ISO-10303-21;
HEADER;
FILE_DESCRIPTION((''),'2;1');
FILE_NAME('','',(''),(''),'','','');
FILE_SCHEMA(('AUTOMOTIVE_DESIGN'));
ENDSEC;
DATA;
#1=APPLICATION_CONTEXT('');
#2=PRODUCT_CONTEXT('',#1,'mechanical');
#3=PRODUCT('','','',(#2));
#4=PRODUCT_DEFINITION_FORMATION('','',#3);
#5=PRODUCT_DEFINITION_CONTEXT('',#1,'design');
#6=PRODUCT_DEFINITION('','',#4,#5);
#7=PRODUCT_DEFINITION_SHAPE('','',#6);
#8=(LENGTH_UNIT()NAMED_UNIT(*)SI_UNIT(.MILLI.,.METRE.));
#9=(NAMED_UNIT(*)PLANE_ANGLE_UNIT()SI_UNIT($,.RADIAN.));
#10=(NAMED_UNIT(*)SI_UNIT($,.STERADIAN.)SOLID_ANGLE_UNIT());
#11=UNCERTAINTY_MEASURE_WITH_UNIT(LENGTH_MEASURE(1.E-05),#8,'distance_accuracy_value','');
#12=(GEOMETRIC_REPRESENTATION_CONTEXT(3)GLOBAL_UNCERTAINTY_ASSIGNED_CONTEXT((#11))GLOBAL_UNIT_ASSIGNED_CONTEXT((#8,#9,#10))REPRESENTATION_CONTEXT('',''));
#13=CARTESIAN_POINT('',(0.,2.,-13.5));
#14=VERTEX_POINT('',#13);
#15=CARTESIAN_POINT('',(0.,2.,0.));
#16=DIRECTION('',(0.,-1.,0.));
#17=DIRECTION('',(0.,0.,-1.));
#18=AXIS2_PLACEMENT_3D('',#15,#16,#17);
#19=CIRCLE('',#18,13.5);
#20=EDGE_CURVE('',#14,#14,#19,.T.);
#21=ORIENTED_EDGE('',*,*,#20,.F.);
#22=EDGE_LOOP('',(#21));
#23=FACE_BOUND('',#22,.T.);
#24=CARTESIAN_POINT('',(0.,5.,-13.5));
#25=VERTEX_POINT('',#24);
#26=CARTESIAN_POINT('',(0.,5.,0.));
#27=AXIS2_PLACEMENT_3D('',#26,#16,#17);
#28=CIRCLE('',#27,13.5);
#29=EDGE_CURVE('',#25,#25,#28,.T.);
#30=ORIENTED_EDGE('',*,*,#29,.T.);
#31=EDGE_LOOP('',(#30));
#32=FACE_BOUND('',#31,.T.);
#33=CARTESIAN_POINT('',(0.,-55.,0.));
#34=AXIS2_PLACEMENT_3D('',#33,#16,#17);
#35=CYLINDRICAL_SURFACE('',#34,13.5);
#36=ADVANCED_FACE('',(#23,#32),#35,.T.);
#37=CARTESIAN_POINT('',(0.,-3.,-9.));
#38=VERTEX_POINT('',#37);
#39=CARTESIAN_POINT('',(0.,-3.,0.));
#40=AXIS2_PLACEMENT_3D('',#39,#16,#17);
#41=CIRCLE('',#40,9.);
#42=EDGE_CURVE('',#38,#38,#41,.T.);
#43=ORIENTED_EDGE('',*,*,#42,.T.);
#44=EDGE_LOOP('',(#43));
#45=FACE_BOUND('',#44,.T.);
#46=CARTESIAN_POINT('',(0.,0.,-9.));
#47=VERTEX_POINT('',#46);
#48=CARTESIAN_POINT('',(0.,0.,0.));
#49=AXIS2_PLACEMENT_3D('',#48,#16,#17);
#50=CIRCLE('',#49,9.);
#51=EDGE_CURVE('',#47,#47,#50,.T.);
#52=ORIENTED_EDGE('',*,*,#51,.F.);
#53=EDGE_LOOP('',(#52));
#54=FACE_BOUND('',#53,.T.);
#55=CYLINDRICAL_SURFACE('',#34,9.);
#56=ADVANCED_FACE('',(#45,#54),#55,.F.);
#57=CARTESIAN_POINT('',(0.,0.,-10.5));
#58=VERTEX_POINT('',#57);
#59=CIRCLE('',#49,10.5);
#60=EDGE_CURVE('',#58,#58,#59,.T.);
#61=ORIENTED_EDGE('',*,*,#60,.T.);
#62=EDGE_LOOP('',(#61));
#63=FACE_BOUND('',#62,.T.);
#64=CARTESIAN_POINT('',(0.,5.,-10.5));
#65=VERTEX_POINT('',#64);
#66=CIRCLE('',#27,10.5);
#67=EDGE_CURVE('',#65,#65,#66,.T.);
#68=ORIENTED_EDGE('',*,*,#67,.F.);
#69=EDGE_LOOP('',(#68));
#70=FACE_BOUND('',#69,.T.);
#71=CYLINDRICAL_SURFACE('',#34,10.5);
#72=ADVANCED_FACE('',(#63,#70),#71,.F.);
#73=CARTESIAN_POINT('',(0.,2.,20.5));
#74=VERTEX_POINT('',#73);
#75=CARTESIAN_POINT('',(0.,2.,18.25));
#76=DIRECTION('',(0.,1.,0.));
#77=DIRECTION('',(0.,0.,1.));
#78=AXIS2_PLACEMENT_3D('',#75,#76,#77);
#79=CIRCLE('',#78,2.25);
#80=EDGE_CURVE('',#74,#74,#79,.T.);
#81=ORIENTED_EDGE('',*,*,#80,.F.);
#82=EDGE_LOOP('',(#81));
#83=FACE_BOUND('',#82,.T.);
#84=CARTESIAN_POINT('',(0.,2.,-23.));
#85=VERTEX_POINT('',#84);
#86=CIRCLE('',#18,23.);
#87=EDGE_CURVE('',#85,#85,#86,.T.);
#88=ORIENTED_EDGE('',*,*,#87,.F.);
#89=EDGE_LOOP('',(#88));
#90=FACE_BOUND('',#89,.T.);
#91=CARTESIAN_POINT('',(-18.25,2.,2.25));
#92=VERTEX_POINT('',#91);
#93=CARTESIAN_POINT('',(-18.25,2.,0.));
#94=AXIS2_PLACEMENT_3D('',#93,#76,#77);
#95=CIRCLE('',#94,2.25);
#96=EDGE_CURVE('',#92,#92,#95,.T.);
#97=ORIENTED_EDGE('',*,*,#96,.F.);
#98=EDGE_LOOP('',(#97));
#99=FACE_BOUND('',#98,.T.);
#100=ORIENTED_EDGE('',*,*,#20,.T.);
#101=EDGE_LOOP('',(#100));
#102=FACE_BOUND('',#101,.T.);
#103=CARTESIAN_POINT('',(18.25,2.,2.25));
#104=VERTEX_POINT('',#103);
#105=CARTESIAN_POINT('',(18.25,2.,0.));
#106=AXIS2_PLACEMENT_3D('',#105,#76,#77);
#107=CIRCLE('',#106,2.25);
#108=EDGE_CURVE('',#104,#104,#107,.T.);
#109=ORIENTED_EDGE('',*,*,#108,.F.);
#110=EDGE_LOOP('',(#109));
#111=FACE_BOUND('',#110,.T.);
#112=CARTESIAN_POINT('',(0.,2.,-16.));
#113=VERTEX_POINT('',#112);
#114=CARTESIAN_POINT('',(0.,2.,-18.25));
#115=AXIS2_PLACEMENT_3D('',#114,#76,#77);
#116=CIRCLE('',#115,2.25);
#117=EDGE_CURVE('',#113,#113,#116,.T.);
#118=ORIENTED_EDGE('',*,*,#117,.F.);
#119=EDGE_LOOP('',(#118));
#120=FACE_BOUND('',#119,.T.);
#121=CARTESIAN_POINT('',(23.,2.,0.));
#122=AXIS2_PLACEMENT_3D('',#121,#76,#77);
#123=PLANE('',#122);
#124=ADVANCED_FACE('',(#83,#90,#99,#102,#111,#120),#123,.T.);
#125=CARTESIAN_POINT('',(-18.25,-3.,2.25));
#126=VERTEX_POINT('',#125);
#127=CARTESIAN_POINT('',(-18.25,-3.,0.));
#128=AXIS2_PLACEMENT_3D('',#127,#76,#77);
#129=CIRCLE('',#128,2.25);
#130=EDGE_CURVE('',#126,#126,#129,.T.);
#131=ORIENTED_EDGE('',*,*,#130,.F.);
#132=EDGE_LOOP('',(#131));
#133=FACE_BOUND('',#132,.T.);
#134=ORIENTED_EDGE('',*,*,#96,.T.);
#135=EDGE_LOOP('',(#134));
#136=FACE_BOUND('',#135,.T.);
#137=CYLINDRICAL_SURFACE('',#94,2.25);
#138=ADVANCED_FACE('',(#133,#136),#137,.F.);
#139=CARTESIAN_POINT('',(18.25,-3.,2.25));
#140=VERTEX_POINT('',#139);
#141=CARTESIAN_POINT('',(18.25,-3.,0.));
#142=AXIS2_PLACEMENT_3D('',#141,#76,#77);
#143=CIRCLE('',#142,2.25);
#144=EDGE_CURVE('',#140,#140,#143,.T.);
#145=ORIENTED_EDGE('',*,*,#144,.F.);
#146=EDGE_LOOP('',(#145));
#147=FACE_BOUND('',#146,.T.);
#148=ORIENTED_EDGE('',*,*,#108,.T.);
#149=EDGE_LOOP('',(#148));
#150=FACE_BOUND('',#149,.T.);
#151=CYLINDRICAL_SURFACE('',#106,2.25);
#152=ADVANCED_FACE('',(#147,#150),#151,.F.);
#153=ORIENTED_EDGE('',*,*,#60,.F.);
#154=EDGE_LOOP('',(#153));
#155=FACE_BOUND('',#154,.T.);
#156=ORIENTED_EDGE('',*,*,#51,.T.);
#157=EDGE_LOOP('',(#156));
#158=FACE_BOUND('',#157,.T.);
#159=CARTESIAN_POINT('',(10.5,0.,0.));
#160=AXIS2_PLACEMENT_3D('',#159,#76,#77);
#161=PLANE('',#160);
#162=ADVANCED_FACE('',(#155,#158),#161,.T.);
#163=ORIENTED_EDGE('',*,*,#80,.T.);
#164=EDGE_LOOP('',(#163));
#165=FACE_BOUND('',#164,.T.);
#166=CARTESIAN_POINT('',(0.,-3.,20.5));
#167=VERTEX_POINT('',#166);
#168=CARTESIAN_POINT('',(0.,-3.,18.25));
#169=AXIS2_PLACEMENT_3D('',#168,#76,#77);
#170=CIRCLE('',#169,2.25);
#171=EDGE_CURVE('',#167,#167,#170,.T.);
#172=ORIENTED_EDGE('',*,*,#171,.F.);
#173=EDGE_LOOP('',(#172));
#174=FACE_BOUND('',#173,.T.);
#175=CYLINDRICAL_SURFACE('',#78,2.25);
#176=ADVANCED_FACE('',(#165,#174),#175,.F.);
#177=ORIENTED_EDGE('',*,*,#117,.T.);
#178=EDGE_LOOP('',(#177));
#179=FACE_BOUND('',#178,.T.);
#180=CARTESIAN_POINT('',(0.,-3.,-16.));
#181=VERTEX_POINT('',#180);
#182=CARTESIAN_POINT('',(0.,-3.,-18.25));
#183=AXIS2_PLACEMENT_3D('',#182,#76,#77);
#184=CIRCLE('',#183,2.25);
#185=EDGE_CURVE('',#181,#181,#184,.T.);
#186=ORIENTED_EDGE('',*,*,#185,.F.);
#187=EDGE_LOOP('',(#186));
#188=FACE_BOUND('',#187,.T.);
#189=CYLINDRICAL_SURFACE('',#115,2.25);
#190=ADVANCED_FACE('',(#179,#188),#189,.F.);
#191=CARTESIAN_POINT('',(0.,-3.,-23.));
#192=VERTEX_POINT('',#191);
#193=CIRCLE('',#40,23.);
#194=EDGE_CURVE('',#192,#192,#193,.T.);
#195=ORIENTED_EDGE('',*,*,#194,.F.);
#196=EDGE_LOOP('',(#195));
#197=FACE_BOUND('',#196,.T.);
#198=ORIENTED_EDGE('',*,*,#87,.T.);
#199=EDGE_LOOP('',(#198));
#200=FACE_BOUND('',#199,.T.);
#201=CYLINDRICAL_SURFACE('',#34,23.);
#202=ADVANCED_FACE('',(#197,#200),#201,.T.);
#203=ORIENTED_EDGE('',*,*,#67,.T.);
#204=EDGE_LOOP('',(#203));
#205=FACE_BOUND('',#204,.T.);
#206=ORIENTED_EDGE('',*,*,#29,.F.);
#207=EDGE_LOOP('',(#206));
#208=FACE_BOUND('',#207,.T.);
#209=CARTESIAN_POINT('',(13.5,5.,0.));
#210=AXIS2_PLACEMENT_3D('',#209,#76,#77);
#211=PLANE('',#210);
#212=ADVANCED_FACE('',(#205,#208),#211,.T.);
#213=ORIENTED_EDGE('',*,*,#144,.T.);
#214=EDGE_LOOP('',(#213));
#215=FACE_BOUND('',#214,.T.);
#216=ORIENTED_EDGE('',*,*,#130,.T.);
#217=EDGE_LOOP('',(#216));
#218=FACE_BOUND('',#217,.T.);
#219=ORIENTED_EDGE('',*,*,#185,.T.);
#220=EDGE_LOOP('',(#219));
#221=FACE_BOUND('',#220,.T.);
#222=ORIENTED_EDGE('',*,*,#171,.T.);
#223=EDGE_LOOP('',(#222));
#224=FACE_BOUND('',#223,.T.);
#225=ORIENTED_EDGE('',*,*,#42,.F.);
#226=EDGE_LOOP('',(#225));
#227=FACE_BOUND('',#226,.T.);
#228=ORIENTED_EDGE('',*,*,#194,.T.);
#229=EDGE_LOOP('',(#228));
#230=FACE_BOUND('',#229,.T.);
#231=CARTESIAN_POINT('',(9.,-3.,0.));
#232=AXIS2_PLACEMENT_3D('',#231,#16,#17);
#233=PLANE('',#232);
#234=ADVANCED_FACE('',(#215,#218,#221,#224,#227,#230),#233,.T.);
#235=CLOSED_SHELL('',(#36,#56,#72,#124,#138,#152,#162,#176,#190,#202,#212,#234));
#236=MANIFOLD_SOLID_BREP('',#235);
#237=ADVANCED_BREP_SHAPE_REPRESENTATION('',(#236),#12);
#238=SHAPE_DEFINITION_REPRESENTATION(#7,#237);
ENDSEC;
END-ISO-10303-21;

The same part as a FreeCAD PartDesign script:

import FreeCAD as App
import Part
import Sketcher
from FreeCAD import Vector
Q = App.Units.Quantity


def add_polygon(sketch, points):
    """Adds a closed chain of lines whose ends are joined by coincident constraints."""
    first, n = sketch.GeometryCount, len(points)
    for a, b in zip(points, points[1:] + points[:1]):
        sketch.addGeometry(Part.LineSegment(App.Vector(*a, 0), App.Vector(*b, 0)), False)
    for i in range(n):
        sketch.addConstraint(Sketcher.Constraint("Coincident", first + i, 2, first + (i + 1) % n, 1))

doc = App.newDocument("Part")
body = doc.addObject("PartDesign::Body", "Body")

sketch1 = doc.addObject("Sketcher::SketchObject", "Sketch")
body.addObject(sketch1)
sketch1.AttachmentSupport = (doc.XY_Plane, [""])
sketch1.MapMode = "FlatFace"
add_polygon(sketch1, [(9, 0), (9, -3), (23, -3), (23, 2), (13.5, 2), (13.5, 5), (10.5, 5), (10.5, 0)])
sketch1.addConstraint([
    Sketcher.Constraint("Vertical", 0),
    Sketcher.Constraint("Horizontal", 1),
    Sketcher.Constraint("Vertical", 2),
    Sketcher.Constraint("Horizontal", 3),
    Sketcher.Constraint("Vertical", 4),
    Sketcher.Constraint("Horizontal", 5),
    Sketcher.Constraint("Vertical", 6),
    Sketcher.Constraint("Horizontal", 7),
    Sketcher.Constraint("PointOnObject", 6, 2, -1),
    Sketcher.Constraint("Equal", 5, 0),
    Sketcher.Constraint("Equal", 0, 4),
    Sketcher.Constraint("DistanceX", 1, 1, 1, 2, Q("14 mm")),
    Sketcher.Constraint("DistanceX", 5, 2, 5, 1, Q("3 mm")),
    Sketcher.Constraint("DistanceY", 2, 1, 2, 2, Q("5 mm")),
    Sketcher.Constraint("DistanceX", 3, 2, 3, 1, Q("9.5 mm")),
    Sketcher.Constraint("DistanceX", -1, 1, 0, 2, Q("9 mm")),
])
revolution = doc.addObject("PartDesign::Revolution", "Revolution")
body.addObject(revolution)
revolution.Profile = sketch1
revolution.ReferenceAxis = (sketch1, ["V_Axis"])
revolution.Angle = 360

sketch2 = doc.addObject("Sketcher::SketchObject", "Sketch001")
body.addObject(sketch2)
sketch2.AttachmentSupport = (doc.XZ_Plane, [""])
sketch2.MapMode = "FlatFace"
sketch2.AttachmentOffset = App.Placement(Vector(0, 0, -2), App.Rotation())
sketch2.addGeometry(Part.Circle(Vector(18.2, 0, 0), Vector(0, 0, 1), 2.2), False)
sketch2.addConstraint([
    Sketcher.Constraint("PointOnObject", 0, 3, -1),
    Sketcher.Constraint("Diameter", 0, Q("4.5 mm")),
    Sketcher.Constraint("DistanceX", -1, 1, 0, 3, Q("18.25 mm")),
])
doc.recompute()
hole = doc.addObject("PartDesign::Hole", "Hole")
body.addObject(hole)
hole.Profile = sketch2
hole.ThreadType = "None"
hole.Diameter = 4.5
hole.DepthType = "ThroughAll"
hole.Reversed = True
doc.recompute()

polarpattern = doc.addObject("PartDesign::PolarPattern", "PolarPattern")
body.addObject(polarpattern)
polarpattern.Originals = [hole]
polarpattern.Axis = (doc.Y_Axis, [""])
polarpattern.Angle = 360
polarpattern.Occurrences = 4
body.Tip = polarpattern

doc.recompute()
